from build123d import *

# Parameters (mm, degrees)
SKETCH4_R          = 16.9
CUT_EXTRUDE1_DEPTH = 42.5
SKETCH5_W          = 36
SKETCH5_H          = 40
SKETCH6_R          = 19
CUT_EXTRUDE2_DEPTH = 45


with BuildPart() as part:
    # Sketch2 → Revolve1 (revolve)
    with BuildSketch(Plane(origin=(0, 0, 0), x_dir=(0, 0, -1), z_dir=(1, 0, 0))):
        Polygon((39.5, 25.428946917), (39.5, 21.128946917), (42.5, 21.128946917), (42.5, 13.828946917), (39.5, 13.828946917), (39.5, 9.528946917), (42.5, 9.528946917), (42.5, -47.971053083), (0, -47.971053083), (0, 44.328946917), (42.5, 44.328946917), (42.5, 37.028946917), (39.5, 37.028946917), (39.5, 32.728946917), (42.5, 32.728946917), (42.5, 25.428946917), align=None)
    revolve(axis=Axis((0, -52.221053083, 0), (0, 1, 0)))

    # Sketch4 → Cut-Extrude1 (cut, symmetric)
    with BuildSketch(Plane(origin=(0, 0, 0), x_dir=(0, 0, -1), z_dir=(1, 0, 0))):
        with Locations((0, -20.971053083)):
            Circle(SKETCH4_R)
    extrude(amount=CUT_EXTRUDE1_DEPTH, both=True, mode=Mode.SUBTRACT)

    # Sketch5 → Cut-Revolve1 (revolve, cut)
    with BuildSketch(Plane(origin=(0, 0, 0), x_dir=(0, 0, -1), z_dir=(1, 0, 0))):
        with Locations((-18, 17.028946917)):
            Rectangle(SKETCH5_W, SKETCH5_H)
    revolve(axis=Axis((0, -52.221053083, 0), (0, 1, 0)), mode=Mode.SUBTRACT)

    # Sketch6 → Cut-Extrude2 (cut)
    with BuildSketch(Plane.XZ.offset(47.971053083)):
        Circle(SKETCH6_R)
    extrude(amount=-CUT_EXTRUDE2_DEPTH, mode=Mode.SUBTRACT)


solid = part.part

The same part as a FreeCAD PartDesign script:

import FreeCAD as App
import Part
import Sketcher
from FreeCAD import Vector
Q = App.Units.Quantity


def add_polygon(sketch, points):
    """Adds a closed chain of lines whose ends are joined by coincident constraints."""
    first, n = sketch.GeometryCount, len(points)
    for a, b in zip(points, points[1:] + points[:1]):
        sketch.addGeometry(Part.LineSegment(App.Vector(*a, 0), App.Vector(*b, 0)), False)
    for i in range(n):
        sketch.addConstraint(Sketcher.Constraint("Coincident", first + i, 2, first + (i + 1) % n, 1))

doc = App.newDocument("Part")
body = doc.addObject("PartDesign::Body", "Body")

sketch1 = body.newObject("Sketcher::SketchObject", "Sketch")
sketch1.AttachmentSupport = (doc.getObject("YZ_Plane"), [""])
sketch1.MapMode = "FlatFace"
add_polygon(sketch1, [(21.128947, -39.5), (25.428947, -39.5), (25.428947, -42.5), (32.728947, -42.5), (32.728947, -39.5), (37.028947, -39.5), (37.028947, -42.5), (44.328947, -42.5), (44.328947, 0), (-47.971053, 0), (-47.971053, -42.5), (9.528947, -42.5), (9.528947, -39.5), (13.828947, -39.5), (13.828947, -42.5), (21.128947, -42.5)])
sketch1.addConstraint([
    Sketcher.Constraint("Horizontal", 0),
    Sketcher.Constraint("Vertical", 1),
    Sketcher.Constraint("Horizontal", 2),
    Sketcher.Constraint("Vertical", 3),
    Sketcher.Constraint("Horizontal", 4),
    Sketcher.Constraint("Vertical", 5),
    Sketcher.Constraint("Horizontal", 6),
    Sketcher.Constraint("Vertical", 7),
    Sketcher.Constraint("Horizontal", 8),
    Sketcher.Constraint("Vertical", 9),
    Sketcher.Constraint("Horizontal", 10),
    Sketcher.Constraint("Vertical", 11),
    Sketcher.Constraint("Horizontal", 12),
    Sketcher.Constraint("Vertical", 13),
    Sketcher.Constraint("Horizontal", 14),
    Sketcher.Constraint("Vertical", 15),
    Sketcher.Constraint("PointOnObject", 7, 2, -1),
    Sketcher.Constraint("Horizontal", 0, 2, 3, 2),
    Sketcher.Constraint("Horizontal", 2, 2, 5, 2),
    Sketcher.Constraint("Horizontal", 6, 2, 9, 2),
    Sketcher.Constraint("Horizontal", 4, 2, 11, 2),
    Sketcher.Constraint("Horizontal", 10, 2, 13, 2),
    Sketcher.Constraint("Equal", 0, 4),
    Sketcher.Constraint("Equal", 2, 6),
    Sketcher.Constraint("Equal", 4, 12),
    Sketcher.Constraint("Equal", 6, 14),
    Sketcher.Constraint("DistanceY", 1, 2, 1, 1, Q("3 mm")),
    Sketcher.Constraint("DistanceX", 0, 1, 0, 2, Q("4.3 mm")),
    Sketcher.Constraint("DistanceX", 2, 1, 2, 2, Q("7.3 mm")),
    Sketcher.Constraint("DistanceX", 8, 2, 8, 1, Q("92.3 mm")),
    Sketcher.Constraint("DistanceY", 7, 1, 7, 2, Q("42.5 mm")),
    Sketcher.Constraint("DistanceX", -1, 1, 0, 2, Q("25.428947 mm")),
])
revolution = body.newObject("PartDesign::Revolution", "Revolution")
revolution.Profile = sketch1
revolution.ReferenceAxis = (sketch1, ["H_Axis"])
revolution.Angle = 360

sketch2 = body.newObject("Sketcher::SketchObject", "Sketch001")
sketch2.AttachmentSupport = (doc.getObject("YZ_Plane"), [""])
sketch2.MapMode = "FlatFace"
sketch2.addGeometry(Part.Circle(Vector(-20.971053, 0, 0), Vector(0, 0, 1), 16.9), False)
sketch2.addConstraint([
    Sketcher.Constraint("PointOnObject", 0, 3, -1),
    Sketcher.Constraint("Diameter", 0, Q("33.8 mm")),
    Sketcher.Constraint("DistanceX", 0, 3, -1, 1, Q("20.971053 mm")),
])
pocket1 = body.newObject("PartDesign::Pocket", "Pocket")
pocket1.Profile = sketch2
pocket1.Length = 85
pocket1.Midplane = True

sketch3 = body.newObject("Sketcher::SketchObject", "Sketch002")
sketch3.AttachmentSupport = (doc.getObject("YZ_Plane"), [""])
sketch3.MapMode = "FlatFace"
add_polygon(sketch3, [(37.028947, 36), (-2.971053, 36), (-2.971053, 0), (37.028947, 0)])
sketch3.addConstraint([
    Sketcher.Constraint("Horizontal", 0),
    Sketcher.Constraint("Vertical", 1),
    Sketcher.Constraint("Horizontal", 2),
    Sketcher.Constraint("Vertical", 3),
    Sketcher.Constraint("PointOnObject", 1, 2, -1),
    Sketcher.Constraint("DistanceX", 0, 2, 0, 1, Q("40 mm")),
    Sketcher.Constraint("DistanceY", 1, 2, 1, 1, Q("36 mm")),
    Sketcher.Constraint("DistanceX", 0, 2, -1, 1, Q("2.971053 mm")),
])
groove = body.newObject("PartDesign::Groove", "Groove")
groove.Profile = sketch3
groove.ReferenceAxis = (sketch3, ["H_Axis"])
groove.Angle = 360

sketch4 = body.newObject("Sketcher::SketchObject", "Sketch003")
sketch4.AttachmentSupport = (doc.getObject("XZ_Plane"), [""])
sketch4.MapMode = "FlatFace"
sketch4.AttachmentOffset = App.Placement(Vector(0, 0, 47.971053), App.Rotation())
sketch4.addGeometry(Part.Circle(Vector(0, 0, 0), Vector(0, 0, 1), 19), False)
sketch4.addConstraint([
    Sketcher.Constraint("Coincident", 0, 3, -1, 1),
    Sketcher.Constraint("Diameter", 0, Q("38 mm")),
])
pocket2 = body.newObject("PartDesign::Pocket", "Pocket001")
pocket2.Profile = sketch4
pocket2.Length = 45

doc.recompute()
